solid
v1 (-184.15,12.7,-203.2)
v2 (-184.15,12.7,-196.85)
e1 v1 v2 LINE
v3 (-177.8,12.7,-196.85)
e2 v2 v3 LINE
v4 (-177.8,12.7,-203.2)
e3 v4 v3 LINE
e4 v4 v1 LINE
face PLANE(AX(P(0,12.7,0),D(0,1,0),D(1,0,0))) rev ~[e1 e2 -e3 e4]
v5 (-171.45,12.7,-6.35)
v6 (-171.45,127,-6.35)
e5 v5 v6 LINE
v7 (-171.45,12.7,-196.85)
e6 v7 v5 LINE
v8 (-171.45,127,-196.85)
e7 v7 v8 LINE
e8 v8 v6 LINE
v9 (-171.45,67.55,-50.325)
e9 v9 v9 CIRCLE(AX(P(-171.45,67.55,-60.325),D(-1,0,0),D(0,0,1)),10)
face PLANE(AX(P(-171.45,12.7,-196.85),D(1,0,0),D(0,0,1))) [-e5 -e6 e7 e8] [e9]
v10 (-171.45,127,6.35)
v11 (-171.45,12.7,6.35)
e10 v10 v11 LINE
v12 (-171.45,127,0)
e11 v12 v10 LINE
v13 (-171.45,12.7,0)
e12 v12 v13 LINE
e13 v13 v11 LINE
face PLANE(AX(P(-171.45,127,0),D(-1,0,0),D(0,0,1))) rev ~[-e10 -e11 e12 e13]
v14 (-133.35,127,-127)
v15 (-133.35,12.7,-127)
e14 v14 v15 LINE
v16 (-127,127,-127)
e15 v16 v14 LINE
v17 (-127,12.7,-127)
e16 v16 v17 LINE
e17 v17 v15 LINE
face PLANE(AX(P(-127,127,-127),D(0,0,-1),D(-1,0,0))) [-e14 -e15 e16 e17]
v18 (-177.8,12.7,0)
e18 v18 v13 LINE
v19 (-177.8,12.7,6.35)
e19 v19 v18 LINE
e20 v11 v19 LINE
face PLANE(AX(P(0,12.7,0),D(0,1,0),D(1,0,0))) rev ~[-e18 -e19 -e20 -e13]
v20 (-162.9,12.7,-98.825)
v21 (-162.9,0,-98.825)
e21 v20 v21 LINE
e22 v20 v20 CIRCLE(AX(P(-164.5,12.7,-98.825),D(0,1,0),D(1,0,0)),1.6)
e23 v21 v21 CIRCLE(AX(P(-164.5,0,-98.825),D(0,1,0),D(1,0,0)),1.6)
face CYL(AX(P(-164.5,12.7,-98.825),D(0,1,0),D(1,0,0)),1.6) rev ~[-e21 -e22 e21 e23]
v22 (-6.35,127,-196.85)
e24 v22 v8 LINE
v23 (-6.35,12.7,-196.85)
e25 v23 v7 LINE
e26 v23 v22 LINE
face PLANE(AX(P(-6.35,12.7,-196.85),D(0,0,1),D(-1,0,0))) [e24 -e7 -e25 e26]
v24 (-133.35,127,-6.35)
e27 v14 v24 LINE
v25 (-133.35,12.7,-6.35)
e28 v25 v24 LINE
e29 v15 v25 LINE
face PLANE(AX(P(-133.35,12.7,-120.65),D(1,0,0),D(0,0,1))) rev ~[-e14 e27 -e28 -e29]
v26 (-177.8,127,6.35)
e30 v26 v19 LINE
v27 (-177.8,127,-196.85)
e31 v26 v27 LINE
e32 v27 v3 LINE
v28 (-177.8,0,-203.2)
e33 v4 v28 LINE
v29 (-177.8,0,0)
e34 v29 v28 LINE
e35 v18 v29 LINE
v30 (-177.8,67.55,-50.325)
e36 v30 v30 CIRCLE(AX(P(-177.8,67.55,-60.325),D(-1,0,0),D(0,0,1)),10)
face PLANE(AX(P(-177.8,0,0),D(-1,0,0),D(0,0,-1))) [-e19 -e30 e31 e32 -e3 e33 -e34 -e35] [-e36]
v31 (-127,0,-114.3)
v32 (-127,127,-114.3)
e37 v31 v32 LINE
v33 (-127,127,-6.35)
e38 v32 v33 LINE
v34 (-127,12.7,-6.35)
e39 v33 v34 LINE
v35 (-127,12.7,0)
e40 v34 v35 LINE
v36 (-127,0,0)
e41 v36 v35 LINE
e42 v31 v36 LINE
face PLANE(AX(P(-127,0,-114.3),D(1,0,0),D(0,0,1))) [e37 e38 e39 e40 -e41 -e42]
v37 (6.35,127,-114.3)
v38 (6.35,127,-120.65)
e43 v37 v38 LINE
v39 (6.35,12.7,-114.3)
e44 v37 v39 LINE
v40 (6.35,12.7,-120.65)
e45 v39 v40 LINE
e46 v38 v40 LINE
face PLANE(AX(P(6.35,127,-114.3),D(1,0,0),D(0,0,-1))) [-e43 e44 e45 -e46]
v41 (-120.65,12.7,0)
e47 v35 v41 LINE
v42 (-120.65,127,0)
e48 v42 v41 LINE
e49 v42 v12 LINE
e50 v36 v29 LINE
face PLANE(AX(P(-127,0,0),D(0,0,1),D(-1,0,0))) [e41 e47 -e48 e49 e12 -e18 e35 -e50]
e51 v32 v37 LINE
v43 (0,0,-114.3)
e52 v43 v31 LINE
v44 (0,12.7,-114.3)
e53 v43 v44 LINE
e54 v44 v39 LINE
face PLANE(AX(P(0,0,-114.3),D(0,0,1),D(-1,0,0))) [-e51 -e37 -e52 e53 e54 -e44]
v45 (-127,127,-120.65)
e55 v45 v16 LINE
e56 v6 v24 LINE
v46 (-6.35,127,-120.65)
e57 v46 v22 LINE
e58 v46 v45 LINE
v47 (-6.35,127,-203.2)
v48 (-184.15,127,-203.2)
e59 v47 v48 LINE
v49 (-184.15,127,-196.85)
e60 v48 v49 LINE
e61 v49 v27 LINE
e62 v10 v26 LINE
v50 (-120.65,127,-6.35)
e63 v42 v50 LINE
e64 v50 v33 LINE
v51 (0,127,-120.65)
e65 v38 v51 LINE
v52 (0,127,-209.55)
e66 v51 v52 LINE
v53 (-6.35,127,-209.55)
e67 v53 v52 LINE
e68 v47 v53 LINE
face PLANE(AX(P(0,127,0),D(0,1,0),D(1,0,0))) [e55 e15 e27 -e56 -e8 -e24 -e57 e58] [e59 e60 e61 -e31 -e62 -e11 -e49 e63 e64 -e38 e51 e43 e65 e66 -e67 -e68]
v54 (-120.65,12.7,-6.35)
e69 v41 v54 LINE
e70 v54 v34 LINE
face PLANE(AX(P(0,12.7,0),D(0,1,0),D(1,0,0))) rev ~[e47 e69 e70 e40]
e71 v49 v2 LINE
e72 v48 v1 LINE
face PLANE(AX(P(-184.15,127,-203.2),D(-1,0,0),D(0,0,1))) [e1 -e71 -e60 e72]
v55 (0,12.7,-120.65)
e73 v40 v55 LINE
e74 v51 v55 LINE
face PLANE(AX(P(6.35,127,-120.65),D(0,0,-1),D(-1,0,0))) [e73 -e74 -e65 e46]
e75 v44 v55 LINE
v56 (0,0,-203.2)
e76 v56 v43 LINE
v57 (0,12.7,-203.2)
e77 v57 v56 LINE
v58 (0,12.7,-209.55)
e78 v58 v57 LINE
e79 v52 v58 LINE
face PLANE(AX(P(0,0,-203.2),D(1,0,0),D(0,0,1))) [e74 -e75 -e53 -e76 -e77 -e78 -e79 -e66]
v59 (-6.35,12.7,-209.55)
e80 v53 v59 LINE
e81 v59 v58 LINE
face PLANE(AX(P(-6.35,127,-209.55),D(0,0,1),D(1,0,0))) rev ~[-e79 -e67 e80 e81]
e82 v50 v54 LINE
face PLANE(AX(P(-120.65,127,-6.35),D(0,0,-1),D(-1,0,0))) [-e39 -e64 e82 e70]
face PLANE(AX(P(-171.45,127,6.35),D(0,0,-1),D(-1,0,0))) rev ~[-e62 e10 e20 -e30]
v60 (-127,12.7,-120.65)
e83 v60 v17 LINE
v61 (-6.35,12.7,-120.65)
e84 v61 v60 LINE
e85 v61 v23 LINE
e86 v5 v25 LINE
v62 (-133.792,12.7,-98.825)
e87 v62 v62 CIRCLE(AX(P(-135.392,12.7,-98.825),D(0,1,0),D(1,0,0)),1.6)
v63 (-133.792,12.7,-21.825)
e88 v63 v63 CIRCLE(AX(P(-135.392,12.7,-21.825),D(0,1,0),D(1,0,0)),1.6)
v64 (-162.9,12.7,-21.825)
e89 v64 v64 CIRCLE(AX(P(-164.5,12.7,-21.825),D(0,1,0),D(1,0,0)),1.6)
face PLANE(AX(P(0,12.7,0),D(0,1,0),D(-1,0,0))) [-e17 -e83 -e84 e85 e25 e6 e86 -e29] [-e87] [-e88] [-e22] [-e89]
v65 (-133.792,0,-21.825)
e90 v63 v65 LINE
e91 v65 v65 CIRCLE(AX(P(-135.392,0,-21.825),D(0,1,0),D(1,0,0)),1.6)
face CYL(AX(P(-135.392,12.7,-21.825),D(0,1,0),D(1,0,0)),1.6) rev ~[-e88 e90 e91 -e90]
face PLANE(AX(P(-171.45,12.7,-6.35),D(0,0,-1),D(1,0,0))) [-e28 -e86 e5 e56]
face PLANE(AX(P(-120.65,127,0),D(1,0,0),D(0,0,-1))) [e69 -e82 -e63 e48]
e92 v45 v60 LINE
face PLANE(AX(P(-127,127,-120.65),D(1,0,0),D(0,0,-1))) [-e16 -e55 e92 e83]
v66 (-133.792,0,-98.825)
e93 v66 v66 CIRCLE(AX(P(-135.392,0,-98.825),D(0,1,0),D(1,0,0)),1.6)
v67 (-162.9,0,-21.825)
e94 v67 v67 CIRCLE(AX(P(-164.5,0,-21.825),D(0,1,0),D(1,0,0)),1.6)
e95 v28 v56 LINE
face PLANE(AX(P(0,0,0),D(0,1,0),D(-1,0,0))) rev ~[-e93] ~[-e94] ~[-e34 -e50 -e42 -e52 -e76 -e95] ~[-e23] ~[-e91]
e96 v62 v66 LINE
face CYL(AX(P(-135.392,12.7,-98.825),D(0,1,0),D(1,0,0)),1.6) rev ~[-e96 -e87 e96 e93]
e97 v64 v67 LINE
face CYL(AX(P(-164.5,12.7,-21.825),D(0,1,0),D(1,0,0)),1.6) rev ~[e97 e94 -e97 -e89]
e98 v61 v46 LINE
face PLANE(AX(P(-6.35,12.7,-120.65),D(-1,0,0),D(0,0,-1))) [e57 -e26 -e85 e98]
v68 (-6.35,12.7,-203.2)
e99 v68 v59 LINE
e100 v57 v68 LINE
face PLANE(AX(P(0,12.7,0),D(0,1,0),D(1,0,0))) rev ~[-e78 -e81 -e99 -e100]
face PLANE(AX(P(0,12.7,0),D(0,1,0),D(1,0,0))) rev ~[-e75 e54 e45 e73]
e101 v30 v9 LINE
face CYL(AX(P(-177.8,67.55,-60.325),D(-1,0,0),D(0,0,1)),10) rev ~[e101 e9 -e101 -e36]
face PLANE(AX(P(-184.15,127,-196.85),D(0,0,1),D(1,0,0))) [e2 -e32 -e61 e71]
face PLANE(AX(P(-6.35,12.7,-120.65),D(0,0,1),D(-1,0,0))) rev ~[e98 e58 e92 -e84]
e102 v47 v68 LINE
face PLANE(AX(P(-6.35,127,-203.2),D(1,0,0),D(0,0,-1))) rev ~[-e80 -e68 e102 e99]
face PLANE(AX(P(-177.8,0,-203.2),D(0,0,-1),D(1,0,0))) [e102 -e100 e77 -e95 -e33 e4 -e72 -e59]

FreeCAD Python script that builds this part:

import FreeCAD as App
import Part
import Sketcher
Q = App.Units.Quantity


def add_polygon(sketch, points):
    """Adds a closed chain of lines whose ends are joined by coincident constraints."""
    first, n = sketch.GeometryCount, len(points)
    for a, b in zip(points, points[1:] + points[:1]):
        sketch.addGeometry(Part.LineSegment(App.Vector(*a, 0), App.Vector(*b, 0)), False)
    for i in range(n):
        sketch.addConstraint(Sketcher.Constraint("Coincident", first + i, 2, first + (i + 1) % n, 1))

doc = App.newDocument("Part")
params = doc.addObject("Spreadsheet::Sheet", "Params")
for row, (alias, value) in enumerate([
    ("sketch1_width", "2 in"),
    ("sketch1_width2", "7 in"),
    ("sketch1_height", "8 in"),
    ("sketch1_height2", "3.5 in"),
    ("pad1_length", "0.5 in"),
    ("sketch2_width", "2 in"),
    ("sketch2_width2", "5 in"),
    ("sketch2_height", "8 in"),
    ("sketch2_height2", "3 in"),
    ("pad2_length", "4.5 in"),
    ("pocket2_length", "0.25 in"),
    ("sketch5_width", "0.25 in"),
    ("pad3_length", "4.5 in"),
    ("sketch6_width", "0.25 in"),
    ("pad4_length", "4.5 in"),
], start=1):
    params.set(f"A{row}", alias)
    params.set(f"B{row}", "=" + value)
    params.setAlias(f"B{row}", alias)

body = doc.addObject("PartDesign::Body", "Body")

sketch1 = doc.addObject("Sketcher::SketchObject", "Sketch")
body.addObject(sketch1)
sketch1.AttachmentSupport = (doc.XZ_Plane, [""])
sketch1.MapMode = "FlatFace"
add_polygon(sketch1, [(-178, 0), (-127, 0), (-127, -114), (0, -114), (0, -203), (-178, -203)])
sketch1.addConstraint(Sketcher.Constraint("Horizontal", 0))
sketch1.addConstraint(Sketcher.Constraint("Vertical", 1))
sketch1.addConstraint(Sketcher.Constraint("Horizontal", 2))
sketch1.addConstraint(Sketcher.Constraint("Vertical", 3))
sketch1.addConstraint(Sketcher.Constraint("Horizontal", 4))
sketch1.addConstraint(Sketcher.Constraint("Vertical", 5))
sketch1.addConstraint(Sketcher.Constraint("PointOnObject", 0, 2, -1))
sketch1.addConstraint(Sketcher.Constraint("PointOnObject", 2, 2, -2))
sketch1.addConstraint(Sketcher.Constraint("DistanceX", 0, 1, 0, 2, Q("2 in")))
sketch1.addConstraint(Sketcher.Constraint("DistanceX", 4, 2, 4, 1, Q("7 in")))
sketch1.addConstraint(Sketcher.Constraint("DistanceY", 5, 1, 5, 2, Q("8 in")))
sketch1.addConstraint(Sketcher.Constraint("DistanceY", 3, 2, 3, 1, Q("3.5 in")))
sketch1.setExpression("Constraints[14]", "Params.sketch1_width")
sketch1.setExpression("Constraints[15]", "Params.sketch1_width2")
sketch1.setExpression("Constraints[16]", "Params.sketch1_height")
sketch1.setExpression("Constraints[17]", "Params.sketch1_height2")
pad1 = doc.addObject("PartDesign::Pad", "Pad")
body.addObject(pad1)
pad1.Profile = sketch1
pad1.setExpression("Length", "Params.pad1_length")
pad1.Reversed = True

sketch2 = doc.addObject("Sketcher::SketchObject", "Sketch001")
body.addObject(sketch2)
sketch2.AttachmentSupport = (doc.XZ_Plane, [""])
sketch2.MapMode = "FlatFace"
sketch2.AttachmentOffset = App.Placement(App.Vector(0, 0, -0.5 * 25.4), App.Rotation())
add_polygon(sketch2, [(-178, 0), (-127, 0), (-127, -114), (0, -114), (0, -203), (-178, -203)])
add_polygon(sketch2, [(-171, -6), (-171, -197), (-6, -197), (-6, -121), (-133, -121), (-133, -6)])
sketch2.addConstraint(Sketcher.Constraint("Horizontal", 0))
sketch2.addConstraint(Sketcher.Constraint("Vertical", 1))
sketch2.addConstraint(Sketcher.Constraint("Horizontal", 2))
sketch2.addConstraint(Sketcher.Constraint("Vertical", 3))
sketch2.addConstraint(Sketcher.Constraint("Horizontal", 4))
sketch2.addConstraint(Sketcher.Constraint("Vertical", 5))
sketch2.addConstraint(Sketcher.Constraint("Vertical", 6))
sketch2.addConstraint(Sketcher.Constraint("Horizontal", 7))
sketch2.addConstraint(Sketcher.Constraint("Vertical", 8))
sketch2.addConstraint(Sketcher.Constraint("Horizontal", 9))
sketch2.addConstraint(Sketcher.Constraint("Vertical", 10))
sketch2.addConstraint(Sketcher.Constraint("Horizontal", 11))
sketch2.addConstraint(Sketcher.Constraint("PointOnObject", 0, 2, -1))
sketch2.addConstraint(Sketcher.Constraint("PointOnObject", 2, 2, -2))
sketch2.addConstraint(Sketcher.Constraint("Equal", 2, 9))
sketch2.addConstraint(Sketcher.Constraint("Equal", 1, 10))
sketch2.addConstraint(Sketcher.Constraint("DistanceX", 0, 1, 0, 2, Q("2 in")))
sketch2.addConstraint(Sketcher.Constraint("DistanceX", 2, 1, 2, 2, Q("5 in")))
sketch2.addConstraint(Sketcher.Constraint("DistanceY", 5, 1, 5, 2, Q("8 in")))
sketch2.addConstraint(Sketcher.Constraint("DistanceY", 8, 1, 8, 2, Q("3 in")))
sketch2.addConstraint(Sketcher.Constraint("DistanceX", 7, 2, -1, 1, Q("0.25 in")))
sketch2.addConstraint(Sketcher.Constraint("DistanceY", 8, 2, -1, 1, Q("4.75 in")))
sketch2.addConstraint(Sketcher.Constraint("DistanceY", 10, 2, -1, 1, Q("0.25 in")))
sketch2.addConstraint(Sketcher.Constraint("DistanceX", 4, 2, 6, 2, Q("0.25 in")))
sketch2.setExpression("Constraints[28]", "Params.sketch2_width")
sketch2.setExpression("Constraints[29]", "Params.sketch2_width2")
sketch2.setExpression("Constraints[30]", "Params.sketch2_height")
sketch2.setExpression("Constraints[31]", "Params.sketch2_height2")
pad2 = doc.addObject("PartDesign::Pad", "Pad001")
body.addObject(pad2)
pad2.Profile = sketch2
pad2.setExpression("Length", "Params.pad2_length")
pad2.Reversed = True

sketch3 = doc.addObject("Sketcher::SketchObject", "Sketch002")
body.addObject(sketch3)
sketch3.AttachmentSupport = (doc.XZ_Plane, [""])
sketch3.MapMode = "FlatFace"
sketch3.AttachmentOffset = App.Placement(App.Vector(0, 0, -0.5 * 25.4), App.Rotation())
sketch3.addGeometry(Part.Circle(App.Vector(-135.4, -98.8, 0), App.Vector(0, 0, 1), 1.6), False)
sketch3.addGeometry(Part.Circle(App.Vector(-164.5, -98.8, 0), App.Vector(0, 0, 1), 1.6), False)
sketch3.addGeometry(Part.Circle(App.Vector(-135.4, -21.8, 0), App.Vector(0, 0, 1), 1.6), False)
sketch3.addGeometry(Part.Circle(App.Vector(-164.5, -21.8, 0), App.Vector(0, 0, 1), 1.6), False)
sketch3.addConstraint(Sketcher.Constraint("Equal", 0, 1))
sketch3.addConstraint(Sketcher.Constraint("Equal", 1, 2))
sketch3.addConstraint(Sketcher.Constraint("Equal", 2, 3))
sketch3.addConstraint(Sketcher.Constraint("Horizontal", 0, 3, 1, 3))
sketch3.addConstraint(Sketcher.Constraint("Horizontal", 2, 3, 3, 3))
sketch3.addConstraint(Sketcher.Constraint("Vertical", 0, 3, 2, 3))
sketch3.addConstraint(Sketcher.Constraint("Vertical", 1, 3, 3, 3))
sketch3.addConstraint(Sketcher.Constraint("Diameter", 0, Q("3.2 mm")))
sketch3.addConstraint(Sketcher.Constraint("DistanceY", 0, 3, 2, 3, Q("3.0315 in")))
sketch3.addConstraint(Sketcher.Constraint("DistanceX", 1, 3, 0, 3, Q("29.108 mm")))
sketch3.addConstraint(Sketcher.Constraint("DistanceX", 0, 3, -1, 1, Q("5.3304 in")))
sketch3.addConstraint(Sketcher.Constraint("DistanceY", 0, 3, -1, 1, Q("98.825 mm")))
pocket1 = doc.addObject("PartDesign::Pocket", "Pocket")
body.addObject(pocket1)
pocket1.Profile = sketch3
pocket1.Type = "ThroughAll"
pocket1.Reversed = True

sketch4 = doc.addObject("Sketcher::SketchObject", "Sketch003")
body.addObject(sketch4)
sketch4.AttachmentSupport = (doc.YZ_Plane, [""])
sketch4.MapMode = "FlatFace"
sketch4.AttachmentOffset = App.Placement(App.Vector(0, 0, -7 * 25.4), App.Rotation())
sketch4.addGeometry(Part.Circle(App.Vector(68, -60, 0), App.Vector(0, 0, 1), 10), False)
sketch4.addConstraint(Sketcher.Constraint("Diameter", 0, Q("0.7874 in")))
sketch4.addConstraint(Sketcher.Constraint("DistanceX", -1, 1, 0, 3, Q("67.55 mm")))
sketch4.addConstraint(Sketcher.Constraint("DistanceY", 0, 3, -1, 1, Q("2.375 in")))
pocket2 = doc.addObject("PartDesign::Pocket", "Pocket001")
body.addObject(pocket2)
pocket2.Profile = sketch4
pocket2.setExpression("Length", "Params.pocket2_length")
pocket2.Reversed = True

sketch5 = doc.addObject("Sketcher::SketchObject", "Sketch004")
body.addObject(sketch5)
sketch5.AttachmentSupport = (doc.XZ_Plane, [""])
sketch5.MapMode = "FlatFace"
sketch5.AttachmentOffset = App.Placement(App.Vector(0, 0, -5 * 25.4), App.Rotation())
add_polygon(sketch5, [(-127, -6), (-127, 0), (-121, 0), (-121, -6)])
add_polygon(sketch5, [(-171, 0), (-178, 0), (-178, 6), (-171, 6)])
sketch5.addConstraint(Sketcher.Constraint("Vertical", 0))
sketch5.addConstraint(Sketcher.Constraint("Horizontal", 1))
sketch5.addConstraint(Sketcher.Constraint("Vertical", 2))
sketch5.addConstraint(Sketcher.Constraint("Horizontal", 3))
sketch5.addConstraint(Sketcher.Constraint("Horizontal", 4))
sketch5.addConstraint(Sketcher.Constraint("Vertical", 5))
sketch5.addConstraint(Sketcher.Constraint("Horizontal", 6))
sketch5.addConstraint(Sketcher.Constraint("Vertical", 7))
sketch5.addConstraint(Sketcher.Constraint("PointOnObject", 0, 2, -1))
sketch5.addConstraint(Sketcher.Constraint("PointOnObject", 4, 2, -1))
sketch5.addConstraint(Sketcher.Constraint("Equal", 3, 4))
sketch5.addConstraint(Sketcher.Constraint("Equal", 6, 0))
sketch5.addConstraint(Sketcher.Constraint("Equal", 2, 5))
sketch5.addConstraint(Sketcher.Constraint("DistanceX", 1, 1, 1, 2, Q("0.25 in")))
sketch5.addConstraint(Sketcher.Constraint("DistanceX", 0, 2, -1, 1, Q("5 in")))
sketch5.addConstraint(Sketcher.Constraint("DistanceX", 4, 2, -1, 1, Q("7 in")))
sketch5.setExpression("Constraints[21]", "Params.sketch5_width")
pad3 = doc.addObject("PartDesign::Pad", "Pad002")
body.addObject(pad3)
pad3.Profile = sketch5
pad3.setExpression("Length", "Params.pad3_length")

sketch6 = doc.addObject("Sketcher::SketchObject", "Sketch005")
body.addObject(sketch6)
sketch6.AttachmentSupport = (doc.XZ_Plane, [""])
sketch6.MapMode = "FlatFace"
sketch6.AttachmentOffset = App.Placement(App.Vector(0, 0, -5 * 25.4), App.Rotation())
add_polygon(sketch6, [(-133, -121), (-127, -121), (-127, -127), (-133, -127)])
add_polygon(sketch6, [(-178, -197), (-178, -203), (-184, -203), (-184, -197)])
add_polygon(sketch6, [(-6, -210), (-6, -203), (0, -203), (0, -210)])
add_polygon(sketch6, [(6, -121), (0, -121), (0, -114), (6, -114)])
sketch6.addConstraint(Sketcher.Constraint("Horizontal", 0))
sketch6.addConstraint(Sketcher.Constraint("Vertical", 1))
sketch6.addConstraint(Sketcher.Constraint("Horizontal", 2))
sketch6.addConstraint(Sketcher.Constraint("Vertical", 3))
sketch6.addConstraint(Sketcher.Constraint("Vertical", 4))
sketch6.addConstraint(Sketcher.Constraint("Horizontal", 5))
sketch6.addConstraint(Sketcher.Constraint("Vertical", 6))
sketch6.addConstraint(Sketcher.Constraint("Horizontal", 7))
sketch6.addConstraint(Sketcher.Constraint("Vertical", 8))
sketch6.addConstraint(Sketcher.Constraint("Horizontal", 9))
sketch6.addConstraint(Sketcher.Constraint("Vertical", 10))
sketch6.addConstraint(Sketcher.Constraint("Horizontal", 11))
sketch6.addConstraint(Sketcher.Constraint("Horizontal", 12))
sketch6.addConstraint(Sketcher.Constraint("Vertical", 13))
sketch6.addConstraint(Sketcher.Constraint("Horizontal", 14))
sketch6.addConstraint(Sketcher.Constraint("Vertical", 15))
sketch6.addConstraint(Sketcher.Constraint("PointOnObject", 9, 2, -2))
sketch6.addConstraint(Sketcher.Constraint("PointOnObject", 12, 2, -2))
sketch6.addConstraint(Sketcher.Constraint("Horizontal", 5, 2, 8, 2))
sketch6.addConstraint(Sketcher.Constraint("Horizontal", 3, 2, 12, 2))
sketch6.addConstraint(Sketcher.Constraint("Equal", 2, 5))
sketch6.addConstraint(Sketcher.Constraint("Equal", 7, 9))
sketch6.addConstraint(Sketcher.Constraint("Equal", 11, 12))
sketch6.addConstraint(Sketcher.Constraint("Equal", 14, 1))
sketch6.addConstraint(Sketcher.Constraint("Equal", 3, 4))
sketch6.addConstraint(Sketcher.Constraint("Equal", 6, 8))
sketch6.addConstraint(Sketcher.Constraint("Equal", 10, 13))
sketch6.addConstraint(Sketcher.Constraint("DistanceX", 0, 1, 0, 2, Q("0.25 in")))
sketch6.addConstraint(Sketcher.Constraint("DistanceX", 0, 2, -1, 1, Q("5 in")))
sketch6.addConstraint(Sketcher.Constraint("DistanceY", 1, 2, -1, 1, Q("5 in")))
sketch6.addConstraint(Sketcher.Constraint("DistanceX", 4, 2, -1, 1, Q("7 in")))
sketch6.addConstraint(Sketcher.Constraint("DistanceY", 4, 2, -1, 1, Q("8 in")))
sketch6.setExpression("Constraints[43]", "Params.sketch6_width")
pad4 = doc.addObject("PartDesign::Pad", "Pad003")
body.addObject(pad4)
pad4.Profile = sketch6
pad4.setExpression("Length", "Params.pad4_length")

doc.recompute()
